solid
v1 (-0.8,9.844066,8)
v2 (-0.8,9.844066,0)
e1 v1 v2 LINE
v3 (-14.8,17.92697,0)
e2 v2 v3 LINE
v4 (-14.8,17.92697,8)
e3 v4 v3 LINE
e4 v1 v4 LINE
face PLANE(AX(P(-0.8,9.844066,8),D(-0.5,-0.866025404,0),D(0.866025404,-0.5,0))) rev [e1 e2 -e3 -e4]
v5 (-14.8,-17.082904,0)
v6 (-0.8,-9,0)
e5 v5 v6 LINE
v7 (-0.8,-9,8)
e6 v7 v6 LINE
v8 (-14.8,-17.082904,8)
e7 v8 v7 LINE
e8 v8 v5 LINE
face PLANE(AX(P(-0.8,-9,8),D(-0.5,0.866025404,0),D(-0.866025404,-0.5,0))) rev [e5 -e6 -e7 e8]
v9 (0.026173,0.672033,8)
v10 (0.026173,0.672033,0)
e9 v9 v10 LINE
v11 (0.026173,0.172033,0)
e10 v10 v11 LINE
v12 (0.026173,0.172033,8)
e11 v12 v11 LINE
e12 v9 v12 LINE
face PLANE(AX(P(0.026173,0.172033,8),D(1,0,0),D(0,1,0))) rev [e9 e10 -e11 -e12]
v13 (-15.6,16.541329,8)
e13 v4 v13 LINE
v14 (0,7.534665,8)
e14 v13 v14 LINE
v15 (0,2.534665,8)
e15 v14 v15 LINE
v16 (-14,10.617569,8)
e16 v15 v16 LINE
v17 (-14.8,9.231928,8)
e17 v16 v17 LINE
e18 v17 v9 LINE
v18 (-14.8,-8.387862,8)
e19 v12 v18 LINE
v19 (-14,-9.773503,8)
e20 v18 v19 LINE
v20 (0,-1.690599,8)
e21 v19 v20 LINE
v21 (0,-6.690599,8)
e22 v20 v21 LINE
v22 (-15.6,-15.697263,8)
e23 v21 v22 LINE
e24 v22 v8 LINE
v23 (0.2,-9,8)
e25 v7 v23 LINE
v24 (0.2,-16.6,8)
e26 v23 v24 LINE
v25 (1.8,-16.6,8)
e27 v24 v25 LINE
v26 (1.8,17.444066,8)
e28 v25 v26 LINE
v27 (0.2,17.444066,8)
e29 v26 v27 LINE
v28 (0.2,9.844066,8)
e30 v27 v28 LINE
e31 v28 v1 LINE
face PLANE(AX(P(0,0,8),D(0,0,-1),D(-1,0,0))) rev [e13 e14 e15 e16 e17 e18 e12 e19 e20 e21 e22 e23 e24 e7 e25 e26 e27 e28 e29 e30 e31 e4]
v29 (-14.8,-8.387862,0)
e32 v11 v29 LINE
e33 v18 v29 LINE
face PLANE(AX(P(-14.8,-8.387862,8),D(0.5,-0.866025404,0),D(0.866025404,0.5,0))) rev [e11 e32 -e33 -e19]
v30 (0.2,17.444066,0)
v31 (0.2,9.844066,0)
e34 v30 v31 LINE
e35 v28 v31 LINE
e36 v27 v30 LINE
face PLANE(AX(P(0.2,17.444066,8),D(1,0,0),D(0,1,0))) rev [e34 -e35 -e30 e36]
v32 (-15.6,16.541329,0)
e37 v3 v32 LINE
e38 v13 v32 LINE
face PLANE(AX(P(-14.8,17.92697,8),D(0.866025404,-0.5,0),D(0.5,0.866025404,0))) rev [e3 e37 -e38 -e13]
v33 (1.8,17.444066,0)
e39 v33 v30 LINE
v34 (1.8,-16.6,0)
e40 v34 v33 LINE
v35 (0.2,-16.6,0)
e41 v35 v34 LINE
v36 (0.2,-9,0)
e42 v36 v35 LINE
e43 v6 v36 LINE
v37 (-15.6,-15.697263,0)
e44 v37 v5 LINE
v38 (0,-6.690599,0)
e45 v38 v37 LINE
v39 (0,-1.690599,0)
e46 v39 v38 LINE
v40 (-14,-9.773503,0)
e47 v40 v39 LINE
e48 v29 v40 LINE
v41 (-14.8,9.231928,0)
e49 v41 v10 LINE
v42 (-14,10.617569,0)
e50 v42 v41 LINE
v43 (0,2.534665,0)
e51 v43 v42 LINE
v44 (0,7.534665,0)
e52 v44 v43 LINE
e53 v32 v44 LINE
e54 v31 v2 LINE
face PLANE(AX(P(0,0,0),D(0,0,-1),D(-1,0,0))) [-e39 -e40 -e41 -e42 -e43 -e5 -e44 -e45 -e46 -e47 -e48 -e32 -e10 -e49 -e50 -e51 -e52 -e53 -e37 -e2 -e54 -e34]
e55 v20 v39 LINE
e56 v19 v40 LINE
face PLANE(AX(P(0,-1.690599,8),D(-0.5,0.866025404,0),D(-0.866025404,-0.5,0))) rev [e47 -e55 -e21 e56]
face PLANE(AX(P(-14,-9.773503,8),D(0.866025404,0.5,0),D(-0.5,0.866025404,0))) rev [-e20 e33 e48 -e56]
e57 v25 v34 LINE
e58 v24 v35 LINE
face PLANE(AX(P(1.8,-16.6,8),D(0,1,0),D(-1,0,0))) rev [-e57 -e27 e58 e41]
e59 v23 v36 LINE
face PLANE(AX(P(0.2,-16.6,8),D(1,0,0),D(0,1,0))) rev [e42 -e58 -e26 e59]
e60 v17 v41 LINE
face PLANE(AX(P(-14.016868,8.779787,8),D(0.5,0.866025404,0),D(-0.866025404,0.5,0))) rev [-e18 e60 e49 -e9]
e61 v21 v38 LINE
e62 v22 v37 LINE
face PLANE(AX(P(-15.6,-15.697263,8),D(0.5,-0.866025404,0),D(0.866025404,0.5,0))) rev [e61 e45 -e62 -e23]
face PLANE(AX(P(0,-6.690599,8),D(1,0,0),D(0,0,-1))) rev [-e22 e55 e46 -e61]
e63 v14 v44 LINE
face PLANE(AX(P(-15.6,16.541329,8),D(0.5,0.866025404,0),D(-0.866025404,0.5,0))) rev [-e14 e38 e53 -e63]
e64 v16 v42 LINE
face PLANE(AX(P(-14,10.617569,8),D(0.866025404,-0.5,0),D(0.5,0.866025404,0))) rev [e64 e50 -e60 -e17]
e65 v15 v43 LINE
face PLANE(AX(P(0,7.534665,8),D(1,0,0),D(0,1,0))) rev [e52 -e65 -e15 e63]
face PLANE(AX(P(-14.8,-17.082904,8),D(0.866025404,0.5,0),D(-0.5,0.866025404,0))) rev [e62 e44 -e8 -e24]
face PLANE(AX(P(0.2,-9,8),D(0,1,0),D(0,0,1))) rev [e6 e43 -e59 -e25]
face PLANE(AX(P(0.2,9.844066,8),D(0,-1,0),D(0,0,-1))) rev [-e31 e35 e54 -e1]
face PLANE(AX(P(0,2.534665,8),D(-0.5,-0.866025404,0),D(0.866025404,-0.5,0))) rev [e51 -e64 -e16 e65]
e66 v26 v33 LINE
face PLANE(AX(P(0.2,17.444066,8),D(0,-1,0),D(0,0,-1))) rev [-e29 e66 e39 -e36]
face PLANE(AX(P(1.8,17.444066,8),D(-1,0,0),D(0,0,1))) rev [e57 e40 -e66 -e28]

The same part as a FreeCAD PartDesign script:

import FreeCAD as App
import Part
import Sketcher
Q = App.Units.Quantity

doc = App.newDocument("Part")
body = doc.addObject("PartDesign::Body", "Body")

# Sketch on XY plane
sketch1 = doc.addObject("Sketcher::SketchObject", "Sketch")
body.addObject(sketch1)
sketch1.AttachmentSupport = (doc.XY_Plane, [""])
sketch1.MapMode = "FlatFace"
sketch1.addGeometry(Part.LineSegment(App.Vector(0.2, -16.6, 0), App.Vector(1.8, -16.6, 0)), False)
sketch1.addGeometry(Part.LineSegment(App.Vector(1.8, -16.6, 0), App.Vector(1.8, 17.4, 0)), False)
sketch1.addGeometry(Part.LineSegment(App.Vector(1.8, 17.4, 0), App.Vector(0.2, 17.4, 0)), False)
sketch1.addGeometry(Part.LineSegment(App.Vector(0.2, 17.4, 0), App.Vector(0.2, 9.8, 0)), False)
sketch1.addGeometry(Part.LineSegment(App.Vector(0.2, 9.8, 0), App.Vector(-0.8, 9.8, 0)), False)
sketch1.addGeometry(Part.LineSegment(App.Vector(-0.8, 9.8, 0), App.Vector(-14.8, 17.9, 0)), False)
sketch1.addGeometry(Part.LineSegment(App.Vector(-14.8, 17.9, 0), App.Vector(-15.6, 16.5, 0)), False)
sketch1.addGeometry(Part.LineSegment(App.Vector(-15.6, 16.5, 0), App.Vector(0, 7.5, 0)), False)
sketch1.addGeometry(Part.LineSegment(App.Vector(0, 7.5, 0), App.Vector(0, 2.5, 0)), False)
sketch1.addGeometry(Part.LineSegment(App.Vector(0, 2.5, 0), App.Vector(-14, 10.6, 0)), False)
sketch1.addGeometry(Part.LineSegment(App.Vector(-14, 10.6, 0), App.Vector(-14.8, 9.2, 0)), False)
sketch1.addGeometry(Part.LineSegment(App.Vector(-14.8, 9.2, 0), App.Vector(-14, 8.8, 0)), False)
sketch1.addGeometry(Part.LineSegment(App.Vector(-14, 8.8, 0), App.Vector(0, 0.7, 0)), False)
sketch1.addGeometry(Part.LineSegment(App.Vector(0, 0.7, 0), App.Vector(0, 0.2, 0)), False)
sketch1.addGeometry(Part.LineSegment(App.Vector(0, 0.2, 0), App.Vector(-14, -7.9, 0)), False)
sketch1.addGeometry(Part.LineSegment(App.Vector(-14, -7.9, 0), App.Vector(-14.8, -8.4, 0)), False)
sketch1.addGeometry(Part.LineSegment(App.Vector(-14.8, -8.4, 0), App.Vector(-14, -9.8, 0)), False)
sketch1.addGeometry(Part.LineSegment(App.Vector(-14, -9.8, 0), App.Vector(0, -1.7, 0)), False)
sketch1.addGeometry(Part.LineSegment(App.Vector(0, -1.7, 0), App.Vector(0, -6.7, 0)), False)
sketch1.addGeometry(Part.LineSegment(App.Vector(0, -6.7, 0), App.Vector(-15.6, -15.7, 0)), False)
sketch1.addGeometry(Part.LineSegment(App.Vector(-15.6, -15.7, 0), App.Vector(-14.8, -17.1, 0)), False)
sketch1.addGeometry(Part.LineSegment(App.Vector(-14.8, -17.1, 0), App.Vector(-0.8, -9, 0)), False)
sketch1.addGeometry(Part.LineSegment(App.Vector(-0.8, -9, 0), App.Vector(0.2, -9, 0)), False)
sketch1.addGeometry(Part.LineSegment(App.Vector(0.2, -9, 0), App.Vector(0.2, -16.6, 0)), False)
sketch1.addConstraint(Sketcher.Constraint("Coincident", 0, 2, 1, 1))
sketch1.addConstraint(Sketcher.Constraint("Coincident", 1, 2, 2, 1))
sketch1.addConstraint(Sketcher.Constraint("Coincident", 2, 2, 3, 1))
sketch1.addConstraint(Sketcher.Constraint("Coincident", 3, 2, 4, 1))
sketch1.addConstraint(Sketcher.Constraint("Coincident", 4, 2, 5, 1))
sketch1.addConstraint(Sketcher.Constraint("Coincident", 5, 2, 6, 1))
sketch1.addConstraint(Sketcher.Constraint("Coincident", 6, 2, 7, 1))
sketch1.addConstraint(Sketcher.Constraint("Coincident", 7, 2, 8, 1))
sketch1.addConstraint(Sketcher.Constraint("Coincident", 8, 2, 9, 1))
sketch1.addConstraint(Sketcher.Constraint("Coincident", 9, 2, 10, 1))
sketch1.addConstraint(Sketcher.Constraint("Coincident", 10, 2, 11, 1))
sketch1.addConstraint(Sketcher.Constraint("Coincident", 11, 2, 12, 1))
sketch1.addConstraint(Sketcher.Constraint("Coincident", 12, 2, 13, 1))
sketch1.addConstraint(Sketcher.Constraint("Coincident", 13, 2, 14, 1))
sketch1.addConstraint(Sketcher.Constraint("Coincident", 14, 2, 15, 1))
sketch1.addConstraint(Sketcher.Constraint("Coincident", 15, 2, 16, 1))
sketch1.addConstraint(Sketcher.Constraint("Coincident", 16, 2, 17, 1))
sketch1.addConstraint(Sketcher.Constraint("Coincident", 17, 2, 18, 1))
sketch1.addConstraint(Sketcher.Constraint("Coincident", 18, 2, 19, 1))
sketch1.addConstraint(Sketcher.Constraint("Coincident", 19, 2, 20, 1))
sketch1.addConstraint(Sketcher.Constraint("Coincident", 20, 2, 21, 1))
sketch1.addConstraint(Sketcher.Constraint("Coincident", 21, 2, 22, 1))
sketch1.addConstraint(Sketcher.Constraint("Coincident", 22, 2, 23, 1))
sketch1.addConstraint(Sketcher.Constraint("Coincident", 23, 2, 0, 1))
sketch1.addConstraint(Sketcher.Constraint("Horizontal", 0))
sketch1.addConstraint(Sketcher.Constraint("Vertical", 1))
sketch1.addConstraint(Sketcher.Constraint("Horizontal", 2))
sketch1.addConstraint(Sketcher.Constraint("Vertical", 3))
sketch1.addConstraint(Sketcher.Constraint("Horizontal", 4))
sketch1.addConstraint(Sketcher.Constraint("Vertical", 8))
sketch1.addConstraint(Sketcher.Constraint("Vertical", 13))
sketch1.addConstraint(Sketcher.Constraint("Vertical", 18))
sketch1.addConstraint(Sketcher.Constraint("Horizontal", 22))
sketch1.addConstraint(Sketcher.Constraint("Vertical", 23))
sketch1.addConstraint(Sketcher.Constraint("PointOnObject", 7, 2, -2))
sketch1.addConstraint(Sketcher.Constraint("PointOnObject", 17, 2, -2))
sketch1.addConstraint(Sketcher.Constraint("Perpendicular", 5, 6))
sketch1.addConstraint(Sketcher.Constraint("Perpendicular", 6, 7))
sketch1.addConstraint(Sketcher.Constraint("Parallel", 7, 9))
sketch1.addConstraint(Sketcher.Constraint("Perpendicular", 9, 10))
sketch1.addConstraint(Sketcher.Constraint("Perpendicular", 10, 11))
sketch1.addConstraint(Sketcher.Constraint("Parallel", 11, 12))
sketch1.addConstraint(Sketcher.Constraint("Parallel", 14, 15))
sketch1.addConstraint(Sketcher.Constraint("Perpendicular", 15, 16))
sketch1.addConstraint(Sketcher.Constraint("Perpendicular", 16, 17))
sketch1.addConstraint(Sketcher.Constraint("Parallel", 17, 19))
sketch1.addConstraint(Sketcher.Constraint("Perpendicular", 19, 20))
sketch1.addConstraint(Sketcher.Constraint("Perpendicular", 20, 21))
sketch1.addConstraint(Sketcher.Constraint("Vertical", 5, 2, 10, 2))
sketch1.addConstraint(Sketcher.Constraint("Vertical", 11, 2, 14, 2))
sketch1.addConstraint(Sketcher.Constraint("Vertical", 10, 2, 15, 2))
sketch1.addConstraint(Sketcher.Constraint("Vertical", 9, 2, 16, 2))
sketch1.addConstraint(Sketcher.Constraint("Vertical", 6, 2, 19, 2))
sketch1.addConstraint(Sketcher.Constraint("Vertical", 15, 2, 20, 2))
sketch1.addConstraint(Sketcher.Constraint("Vertical", 4, 2, 21, 2))
sketch1.addConstraint(Sketcher.Constraint("Vertical", 3, 2, 22, 2))
sketch1.addConstraint(Sketcher.Constraint("Equal", 8, 18))
sketch1.addConstraint(Sketcher.Constraint("Equal", 3, 23))
sketch1.addConstraint(Sketcher.Constraint("Equal", 5, 9))
sketch1.addConstraint(Sketcher.Constraint("Equal", 6, 10))
sketch1.addConstraint(Sketcher.Constraint("Equal", 12, 14))
sketch1.addConstraint(Sketcher.Constraint("DistanceX", 4, 2, 4, 1, 1.0))
sketch1.addConstraint(Sketcher.Constraint("DistanceY", 8, 2, 8, 1, 5.0))
sketch1.addConstraint(Sketcher.Constraint("Angle", 5, Q("150 deg")))
sketch1.addConstraint(Sketcher.Constraint("DistanceX", 0, 1, 0, 2, 1.6))
sketch1.addConstraint(Sketcher.Constraint("DistanceY", 3, 2, 3, 1, 7.6))
sketch1.addConstraint(Sketcher.Constraint("DistanceY", 13, 2, 13, 1, 0.5))
sketch1.addConstraint(Sketcher.Constraint("DistanceX", 9, 2, -1, 1, 14.0))
sketch1.addConstraint(Sketcher.Constraint("DistanceY", 21, 2, -1, 1, 9.0))
sketch1.addConstraint(Sketcher.Constraint("Distance", 6, 1.6))
sketch1.addConstraint(Sketcher.Constraint("DistanceY", 1, 1, 1, 2, 34.044066))
sketch1.addConstraint(Sketcher.Constraint("DistanceX", 11, 2, -1, 1, 14.016868))
pad1 = doc.addObject("PartDesign::Pad", "Pad")
body.addObject(pad1)
pad1.Profile = sketch1
pad1.Length = 8

doc.recompute()
